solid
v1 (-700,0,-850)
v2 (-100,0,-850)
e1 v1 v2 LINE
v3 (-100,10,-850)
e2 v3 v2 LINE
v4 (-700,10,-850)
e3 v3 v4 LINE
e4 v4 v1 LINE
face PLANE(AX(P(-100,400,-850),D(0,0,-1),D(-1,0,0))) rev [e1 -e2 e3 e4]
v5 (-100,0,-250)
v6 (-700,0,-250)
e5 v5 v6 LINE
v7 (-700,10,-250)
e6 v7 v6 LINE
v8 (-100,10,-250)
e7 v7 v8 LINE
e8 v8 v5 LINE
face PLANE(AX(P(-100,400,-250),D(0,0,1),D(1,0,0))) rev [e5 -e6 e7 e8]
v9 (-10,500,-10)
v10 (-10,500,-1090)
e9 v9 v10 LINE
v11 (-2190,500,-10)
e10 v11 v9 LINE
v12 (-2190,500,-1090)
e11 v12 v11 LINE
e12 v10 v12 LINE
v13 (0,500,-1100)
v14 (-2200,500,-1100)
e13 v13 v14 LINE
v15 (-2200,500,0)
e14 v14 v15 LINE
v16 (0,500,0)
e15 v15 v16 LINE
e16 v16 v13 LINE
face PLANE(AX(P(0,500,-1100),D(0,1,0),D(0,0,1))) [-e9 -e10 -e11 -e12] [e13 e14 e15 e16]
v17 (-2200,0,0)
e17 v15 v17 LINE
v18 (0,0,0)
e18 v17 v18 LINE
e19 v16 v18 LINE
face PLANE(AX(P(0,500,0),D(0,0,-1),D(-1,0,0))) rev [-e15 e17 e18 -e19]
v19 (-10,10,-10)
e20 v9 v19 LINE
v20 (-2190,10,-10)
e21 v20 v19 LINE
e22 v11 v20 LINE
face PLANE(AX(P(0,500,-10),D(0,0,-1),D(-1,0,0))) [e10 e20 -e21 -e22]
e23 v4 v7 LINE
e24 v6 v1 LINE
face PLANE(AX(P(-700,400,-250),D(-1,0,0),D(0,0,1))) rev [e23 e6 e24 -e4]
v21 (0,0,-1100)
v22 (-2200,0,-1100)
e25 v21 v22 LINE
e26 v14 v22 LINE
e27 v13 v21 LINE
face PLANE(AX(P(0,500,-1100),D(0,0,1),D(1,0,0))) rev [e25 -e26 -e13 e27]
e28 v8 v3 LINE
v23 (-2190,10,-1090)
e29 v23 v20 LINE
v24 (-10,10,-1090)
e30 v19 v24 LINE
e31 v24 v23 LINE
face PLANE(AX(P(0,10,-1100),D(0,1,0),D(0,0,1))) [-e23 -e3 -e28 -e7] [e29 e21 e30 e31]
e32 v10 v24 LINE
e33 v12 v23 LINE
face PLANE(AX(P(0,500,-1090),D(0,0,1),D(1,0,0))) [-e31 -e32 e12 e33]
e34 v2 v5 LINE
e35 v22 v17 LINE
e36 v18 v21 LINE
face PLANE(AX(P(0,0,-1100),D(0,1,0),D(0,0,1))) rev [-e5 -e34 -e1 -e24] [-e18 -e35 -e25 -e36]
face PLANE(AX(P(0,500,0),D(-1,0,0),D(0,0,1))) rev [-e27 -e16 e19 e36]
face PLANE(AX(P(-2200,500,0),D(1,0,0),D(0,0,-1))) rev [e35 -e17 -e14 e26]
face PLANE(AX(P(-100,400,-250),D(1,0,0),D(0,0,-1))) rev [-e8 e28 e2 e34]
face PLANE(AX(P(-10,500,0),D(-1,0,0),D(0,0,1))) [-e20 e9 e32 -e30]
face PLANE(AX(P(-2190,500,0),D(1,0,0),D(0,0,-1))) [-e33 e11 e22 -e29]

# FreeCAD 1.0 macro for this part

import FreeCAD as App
import Part
import Sketcher

V = App.Vector


def faces_at(feature, points):
    """Names of the faces that lie closest to the given points."""
    faces = feature.Shape.Faces
    near = lambda p: min(range(len(faces)), key=lambda i: faces[i].distToShape(Part.Vertex(*p))[0])
    return sorted({f"Face{near(p) + 1}" for p in points})

doc = App.newDocument("Part")
params = doc.addObject("Spreadsheet::Sheet", "Params")
for row, (alias, value) in enumerate([
    ("sketch1_width", "2200 mm"),
    ("sketch1_height", "1100 mm"),
    ("pad1_length", "500 mm"),
    ("thickness_wall", "10 mm"),
    ("sketch2_width", "600 mm"),
    ("pocket1_length", "400 mm"),
], start=1):
    params.set(f"A{row}", alias)
    params.set(f"B{row}", "=" + value)
    params.setAlias(f"B{row}", alias)

body = doc.addObject("PartDesign::Body", "Body")

# Sketch on XZ plane
sketch1 = body.newObject("Sketcher::SketchObject", "Sketch")
sketch1.AttachmentSupport = (doc.getObject("XZ_Plane"), [""])
sketch1.MapMode = "FlatFace"
sketch1.addGeometry([
    Part.LineSegment(V(-2200, -1100, 0), V(-2200, 0, 0)),
    Part.LineSegment(V(-2200, 0, 0), V(0, 0, 0)),
    Part.LineSegment(V(0, 0, 0), V(0, -1100, 0)),
    Part.LineSegment(V(0, -1100, 0), V(-2200, -1100, 0)),
], False)
sketch1.addConstraint([
    Sketcher.Constraint("Coincident", 0, 2, 1, 1),
    Sketcher.Constraint("Coincident", 1, 2, 2, 1),
    Sketcher.Constraint("Coincident", 2, 2, 3, 1),
    Sketcher.Constraint("Coincident", 3, 2, 0, 1),
    Sketcher.Constraint("Vertical", 0),
    Sketcher.Constraint("Horizontal", 1),
    Sketcher.Constraint("Vertical", 2),
    Sketcher.Constraint("Horizontal", 3),
    Sketcher.Constraint("Coincident", 1, 2, -1, 1),
    Sketcher.Constraint("DistanceX", 1, 1, 1, 2, 2200.0),
    Sketcher.Constraint("DistanceY", 0, 1, 0, 2, 1100.0),
])
sketch1.setExpression("Constraints[9]", "Params.sketch1_width")
sketch1.setExpression("Constraints[10]", "Params.sketch1_height")
pad1 = body.newObject("PartDesign::Pad", "Pad")
pad1.Profile = sketch1
pad1.setExpression("Length", "Params.pad1_length")
pad1.Reversed = True
doc.recompute()

thickness = body.newObject("PartDesign::Thickness", "Thickness")
thickness.Base = (pad1, faces_at(pad1, [(-1100, 500, -550)]))
thickness.setExpression("Value", "Params.thickness_wall")
thickness.Reversed = True
thickness.Join = "Intersection"

# Sketch on XZ plane
sketch2 = body.newObject("Sketcher::SketchObject", "Sketch001")
sketch2.AttachmentSupport = (doc.getObject("XZ_Plane"), [""])
sketch2.MapMode = "FlatFace"
sketch2.addGeometry([
    Part.LineSegment(V(-700, -250, 0), V(-700, -850, 0)),
    Part.LineSegment(V(-700, -850, 0), V(-100, -850, 0)),
    Part.LineSegment(V(-100, -850, 0), V(-100, -250, 0)),
    Part.LineSegment(V(-100, -250, 0), V(-700, -250, 0)),
], False)
sketch2.addConstraint([
    Sketcher.Constraint("Coincident", 0, 2, 1, 1),
    Sketcher.Constraint("Coincident", 1, 2, 2, 1),
    Sketcher.Constraint("Coincident", 2, 2, 3, 1),
    Sketcher.Constraint("Coincident", 3, 2, 0, 1),
    Sketcher.Constraint("Vertical", 0),
    Sketcher.Constraint("Horizontal", 1),
    Sketcher.Constraint("Vertical", 2),
    Sketcher.Constraint("Horizontal", 3),
    Sketcher.Constraint("Equal", 3, 0),
    Sketcher.Constraint("DistanceX", 1, 1, 1, 2, 600.0),
    Sketcher.Constraint("DistanceX", 0, 2, -1, 1, 700.0),
    Sketcher.Constraint("DistanceY", 0, 2, -1, 1, 850.0),
])
sketch2.setExpression("Constraints[9]", "Params.sketch2_width")
pocket1 = body.newObject("PartDesign::Pocket", "Pocket")
pocket1.Profile = sketch2
pocket1.setExpression("Length", "Params.pocket1_length")

doc.recompute()
